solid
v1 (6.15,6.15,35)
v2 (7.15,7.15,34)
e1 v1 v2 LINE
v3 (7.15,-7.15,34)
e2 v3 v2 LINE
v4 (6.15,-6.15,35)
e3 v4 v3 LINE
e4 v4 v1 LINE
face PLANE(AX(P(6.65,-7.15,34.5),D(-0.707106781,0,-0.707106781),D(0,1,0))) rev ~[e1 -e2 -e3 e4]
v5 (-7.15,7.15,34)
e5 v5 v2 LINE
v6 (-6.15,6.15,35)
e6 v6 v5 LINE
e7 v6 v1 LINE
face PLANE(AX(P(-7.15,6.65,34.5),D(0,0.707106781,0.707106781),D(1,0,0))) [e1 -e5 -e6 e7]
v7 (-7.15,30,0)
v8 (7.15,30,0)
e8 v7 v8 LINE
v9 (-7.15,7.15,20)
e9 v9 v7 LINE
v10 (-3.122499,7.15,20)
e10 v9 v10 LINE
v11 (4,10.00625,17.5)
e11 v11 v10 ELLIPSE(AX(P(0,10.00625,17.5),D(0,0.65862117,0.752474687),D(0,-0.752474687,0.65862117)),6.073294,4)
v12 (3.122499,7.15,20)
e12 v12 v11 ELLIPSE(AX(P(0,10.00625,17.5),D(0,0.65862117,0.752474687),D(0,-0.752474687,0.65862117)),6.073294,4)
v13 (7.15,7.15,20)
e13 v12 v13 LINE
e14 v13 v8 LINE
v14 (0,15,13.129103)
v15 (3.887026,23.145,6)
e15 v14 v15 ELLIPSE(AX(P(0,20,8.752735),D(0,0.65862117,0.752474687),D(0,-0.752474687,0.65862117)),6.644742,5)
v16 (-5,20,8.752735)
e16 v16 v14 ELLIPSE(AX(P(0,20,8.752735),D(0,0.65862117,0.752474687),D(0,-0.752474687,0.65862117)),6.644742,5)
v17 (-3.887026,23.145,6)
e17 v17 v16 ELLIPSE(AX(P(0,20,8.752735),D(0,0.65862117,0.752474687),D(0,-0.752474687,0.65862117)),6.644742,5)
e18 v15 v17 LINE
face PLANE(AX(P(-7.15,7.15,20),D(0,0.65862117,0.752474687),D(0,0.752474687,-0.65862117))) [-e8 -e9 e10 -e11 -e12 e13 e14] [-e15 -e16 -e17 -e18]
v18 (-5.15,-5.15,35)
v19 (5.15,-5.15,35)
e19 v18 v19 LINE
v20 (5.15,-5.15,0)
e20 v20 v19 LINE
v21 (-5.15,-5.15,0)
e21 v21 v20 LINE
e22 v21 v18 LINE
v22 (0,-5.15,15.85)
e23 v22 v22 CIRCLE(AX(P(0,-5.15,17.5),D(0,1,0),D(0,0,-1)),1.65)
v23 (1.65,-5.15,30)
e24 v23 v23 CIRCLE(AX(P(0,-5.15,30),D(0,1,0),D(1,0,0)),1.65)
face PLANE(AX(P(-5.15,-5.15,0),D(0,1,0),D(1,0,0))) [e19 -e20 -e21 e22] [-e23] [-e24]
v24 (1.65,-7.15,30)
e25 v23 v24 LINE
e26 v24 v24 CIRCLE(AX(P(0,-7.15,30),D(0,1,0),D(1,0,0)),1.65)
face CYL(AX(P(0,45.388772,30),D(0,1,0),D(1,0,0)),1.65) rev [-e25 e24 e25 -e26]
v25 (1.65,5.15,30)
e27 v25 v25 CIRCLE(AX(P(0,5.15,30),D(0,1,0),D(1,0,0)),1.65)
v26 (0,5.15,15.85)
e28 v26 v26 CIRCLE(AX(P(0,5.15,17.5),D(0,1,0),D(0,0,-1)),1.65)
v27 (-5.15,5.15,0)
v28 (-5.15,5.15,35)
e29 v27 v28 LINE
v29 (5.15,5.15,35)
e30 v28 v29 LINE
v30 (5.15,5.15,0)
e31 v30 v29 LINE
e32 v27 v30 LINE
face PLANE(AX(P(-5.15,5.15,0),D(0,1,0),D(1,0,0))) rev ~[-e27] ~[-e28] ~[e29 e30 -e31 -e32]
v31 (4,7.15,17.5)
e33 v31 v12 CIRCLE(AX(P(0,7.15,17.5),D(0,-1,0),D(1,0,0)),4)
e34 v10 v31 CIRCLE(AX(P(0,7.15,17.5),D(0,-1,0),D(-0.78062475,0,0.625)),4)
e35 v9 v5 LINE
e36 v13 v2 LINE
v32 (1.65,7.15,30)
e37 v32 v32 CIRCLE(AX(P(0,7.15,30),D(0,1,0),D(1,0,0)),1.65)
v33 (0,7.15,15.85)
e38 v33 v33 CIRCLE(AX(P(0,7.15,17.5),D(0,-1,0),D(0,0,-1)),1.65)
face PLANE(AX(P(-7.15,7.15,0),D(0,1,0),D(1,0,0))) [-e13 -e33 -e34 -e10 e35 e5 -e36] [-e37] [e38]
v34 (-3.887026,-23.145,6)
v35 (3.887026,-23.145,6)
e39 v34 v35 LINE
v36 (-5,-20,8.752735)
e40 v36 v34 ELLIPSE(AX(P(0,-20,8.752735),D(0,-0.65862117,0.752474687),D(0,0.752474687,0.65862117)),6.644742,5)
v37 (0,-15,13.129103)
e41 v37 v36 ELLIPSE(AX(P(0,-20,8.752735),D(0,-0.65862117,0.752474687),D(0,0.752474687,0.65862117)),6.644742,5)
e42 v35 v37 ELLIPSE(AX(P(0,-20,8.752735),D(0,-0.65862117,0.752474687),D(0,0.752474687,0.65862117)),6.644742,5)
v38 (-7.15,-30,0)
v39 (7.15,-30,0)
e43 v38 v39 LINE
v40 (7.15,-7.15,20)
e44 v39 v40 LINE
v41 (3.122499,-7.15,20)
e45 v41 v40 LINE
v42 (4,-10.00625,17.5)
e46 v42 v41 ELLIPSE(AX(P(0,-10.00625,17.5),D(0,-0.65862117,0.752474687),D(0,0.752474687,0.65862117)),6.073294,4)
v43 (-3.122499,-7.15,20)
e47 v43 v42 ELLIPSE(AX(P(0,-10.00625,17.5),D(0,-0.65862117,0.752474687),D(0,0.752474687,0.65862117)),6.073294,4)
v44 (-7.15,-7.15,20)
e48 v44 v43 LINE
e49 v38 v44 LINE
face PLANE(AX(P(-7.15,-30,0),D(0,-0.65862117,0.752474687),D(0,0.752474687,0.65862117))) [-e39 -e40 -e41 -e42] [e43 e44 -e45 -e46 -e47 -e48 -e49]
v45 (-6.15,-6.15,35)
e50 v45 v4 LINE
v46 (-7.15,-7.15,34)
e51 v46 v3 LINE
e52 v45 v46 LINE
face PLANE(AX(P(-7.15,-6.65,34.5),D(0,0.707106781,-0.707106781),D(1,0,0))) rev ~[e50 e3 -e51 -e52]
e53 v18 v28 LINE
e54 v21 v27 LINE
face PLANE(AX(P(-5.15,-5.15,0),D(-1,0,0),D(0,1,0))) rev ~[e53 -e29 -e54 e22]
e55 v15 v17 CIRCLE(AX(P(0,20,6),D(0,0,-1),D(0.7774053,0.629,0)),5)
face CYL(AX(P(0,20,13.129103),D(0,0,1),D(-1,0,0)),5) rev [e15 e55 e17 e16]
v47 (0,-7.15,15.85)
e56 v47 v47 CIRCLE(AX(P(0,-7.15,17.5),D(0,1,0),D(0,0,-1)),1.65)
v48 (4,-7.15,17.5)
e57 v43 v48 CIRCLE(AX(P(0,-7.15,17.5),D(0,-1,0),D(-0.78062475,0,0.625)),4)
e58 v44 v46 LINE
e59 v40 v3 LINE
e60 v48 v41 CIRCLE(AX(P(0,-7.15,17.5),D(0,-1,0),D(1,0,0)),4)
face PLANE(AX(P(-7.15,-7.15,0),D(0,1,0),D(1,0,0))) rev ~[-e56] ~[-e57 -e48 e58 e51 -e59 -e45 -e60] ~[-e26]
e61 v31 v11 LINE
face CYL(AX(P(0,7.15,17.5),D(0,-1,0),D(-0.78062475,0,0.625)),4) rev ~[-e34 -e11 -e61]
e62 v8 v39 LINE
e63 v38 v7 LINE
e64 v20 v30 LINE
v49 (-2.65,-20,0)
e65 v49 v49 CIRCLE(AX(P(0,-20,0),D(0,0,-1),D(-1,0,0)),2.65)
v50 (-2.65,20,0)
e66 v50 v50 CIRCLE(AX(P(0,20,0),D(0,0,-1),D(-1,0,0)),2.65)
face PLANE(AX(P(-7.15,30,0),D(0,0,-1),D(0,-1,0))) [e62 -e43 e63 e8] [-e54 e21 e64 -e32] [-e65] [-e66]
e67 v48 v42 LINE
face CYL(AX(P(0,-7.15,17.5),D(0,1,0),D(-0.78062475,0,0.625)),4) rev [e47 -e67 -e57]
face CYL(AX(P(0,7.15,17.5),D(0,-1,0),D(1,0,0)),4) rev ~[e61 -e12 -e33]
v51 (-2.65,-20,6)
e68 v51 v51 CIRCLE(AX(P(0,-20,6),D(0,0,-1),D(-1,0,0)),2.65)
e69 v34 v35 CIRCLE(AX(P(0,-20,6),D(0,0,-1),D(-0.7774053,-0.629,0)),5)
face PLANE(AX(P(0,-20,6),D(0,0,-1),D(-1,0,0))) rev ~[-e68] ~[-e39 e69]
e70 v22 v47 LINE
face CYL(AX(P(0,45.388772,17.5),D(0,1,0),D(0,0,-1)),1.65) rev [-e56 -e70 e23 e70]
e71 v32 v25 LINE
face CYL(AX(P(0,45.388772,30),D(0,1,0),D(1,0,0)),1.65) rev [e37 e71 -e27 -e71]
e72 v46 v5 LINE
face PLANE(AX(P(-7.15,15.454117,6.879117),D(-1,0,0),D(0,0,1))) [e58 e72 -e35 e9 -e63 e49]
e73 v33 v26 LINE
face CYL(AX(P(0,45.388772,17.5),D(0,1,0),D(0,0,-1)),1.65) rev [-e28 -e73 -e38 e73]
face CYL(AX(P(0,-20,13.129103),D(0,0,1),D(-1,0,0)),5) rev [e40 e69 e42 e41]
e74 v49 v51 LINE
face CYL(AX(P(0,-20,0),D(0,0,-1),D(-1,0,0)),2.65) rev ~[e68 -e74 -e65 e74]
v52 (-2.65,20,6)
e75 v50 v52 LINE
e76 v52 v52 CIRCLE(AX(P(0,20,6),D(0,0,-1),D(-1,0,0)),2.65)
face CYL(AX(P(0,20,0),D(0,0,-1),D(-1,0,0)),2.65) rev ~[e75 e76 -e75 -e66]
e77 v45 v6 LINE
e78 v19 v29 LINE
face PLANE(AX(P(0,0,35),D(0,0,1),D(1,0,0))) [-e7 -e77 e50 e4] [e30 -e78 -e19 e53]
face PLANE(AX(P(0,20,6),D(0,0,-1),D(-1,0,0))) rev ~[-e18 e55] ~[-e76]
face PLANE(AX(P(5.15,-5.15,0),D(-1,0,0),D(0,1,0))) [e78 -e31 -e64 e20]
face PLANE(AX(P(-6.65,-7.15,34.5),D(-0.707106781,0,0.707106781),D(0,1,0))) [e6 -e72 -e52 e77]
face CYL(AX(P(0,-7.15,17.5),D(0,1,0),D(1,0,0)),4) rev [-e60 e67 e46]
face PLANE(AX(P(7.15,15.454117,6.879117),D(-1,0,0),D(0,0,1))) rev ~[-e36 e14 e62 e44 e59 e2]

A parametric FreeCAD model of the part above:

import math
import FreeCAD as App
import Part
import Sketcher
from FreeCAD import Vector


def edges_at(feature, points):
    """Names of the edges that pass closest to the given points."""
    edges = feature.Shape.Edges
    near = lambda p: min(range(len(edges)), key=lambda i: edges[i].distToShape(Part.Vertex(*p))[0])
    return sorted({f"Edge{near(p) + 1}" for p in points})


def add_polygon(sketch, points):
    """Adds a closed chain of lines whose ends are joined by coincident constraints."""
    first, n = sketch.GeometryCount, len(points)
    for a, b in zip(points, points[1:] + points[:1]):
        sketch.addGeometry(Part.LineSegment(App.Vector(*a, 0), App.Vector(*b, 0)), False)
    for i in range(n):
        sketch.addConstraint(Sketcher.Constraint("Coincident", first + i, 2, first + (i + 1) % n, 1))

doc = App.newDocument("Part")
body = doc.addObject("PartDesign::Body", "Body")

# Sketch on XY plane
sketch1 = body.newObject("Sketcher::SketchObject", "Sketch")
sketch1.AttachmentSupport = (doc.getObject("XY_Plane"), [""])
sketch1.MapMode = "FlatFace"
add_polygon(sketch1, [(-7.15, 7.15), (-7.15, -7.15), (7.15, -7.15), (7.15, 7.15)])  # lines 0-3
add_polygon(sketch1, [(5.15, -5.15), (-5.15, -5.15), (-5.15, 5.15), (5.15, 5.15)])  # lines 4-7
sketch1.addConstraint([
    Sketcher.Constraint("Vertical", 0),
    Sketcher.Constraint("Horizontal", 1),
    Sketcher.Constraint("Vertical", 2),
    Sketcher.Constraint("Horizontal", 3),
    Sketcher.Constraint("Horizontal", 4),
    Sketcher.Constraint("Vertical", 5),
    Sketcher.Constraint("Horizontal", 6),
    Sketcher.Constraint("Vertical", 7),
    Sketcher.Constraint("Symmetric", 0, 2, 2, 2, -1, 1),
    Sketcher.Constraint("Symmetric", 4, 2, 6, 2, -1, 1),
    Sketcher.Constraint("Equal", 3, 0),
    Sketcher.Constraint("Equal", 6, 5),
    Sketcher.Constraint("DistanceX", 1, 1, 1, 2, 14.3),
    Sketcher.Constraint("DistanceX", 4, 2, 4, 1, 10.3),
])
pad1 = body.newObject("PartDesign::Pad", "Pad")
pad1.Profile = sketch1
pad1.Length = 35

# Sketch on YZ plane
sketch2 = body.newObject("Sketcher::SketchObject", "Sketch001")
sketch2.AttachmentSupport = (doc.getObject("YZ_Plane"), [""])
sketch2.MapMode = "FlatFace"
sketch2.AttachmentOffset = App.Placement(Vector(0, 0, -7.15), App.Rotation())
add_polygon(sketch2, [(30, 0), (7.15, 0), (7.15, 20)])  # lines 0-2
add_polygon(sketch2, [(-7.15, 0), (-30, 0), (-7.15, 20)])  # lines 3-5
sketch2.addConstraint([
    Sketcher.Constraint("Horizontal", 0),
    Sketcher.Constraint("Vertical", 1),
    Sketcher.Constraint("Horizontal", 3),
    Sketcher.Constraint("Vertical", 5),
    Sketcher.Constraint("Symmetric", 2, 2, 3, 2, -1, 1),
    Sketcher.Constraint("Symmetric", 1, 2, 4, 2, -2),
    Sketcher.Constraint("PointOnObject", 0, 2, -1),
    Sketcher.Constraint("DistanceY", 1, 1, 1, 2, 20.0),
    Sketcher.Constraint("DistanceX", -1, 1, 2, 2, 30.0),
    Sketcher.Constraint("DistanceX", 0, 2, 0, 1, 22.85),
])
pad2 = body.newObject("PartDesign::Pad", "Pad001")
pad2.Profile = sketch2
pad2.Length = 14.3

# Sketch on XZ plane
sketch3 = body.newObject("Sketcher::SketchObject", "Sketch002")
sketch3.AttachmentSupport = (doc.getObject("XZ_Plane"), [""])
sketch3.MapMode = "FlatFace"
sketch3.AttachmentOffset = App.Placement(Vector(0, 0, 7.15), App.Rotation())
sketch3.addGeometry([
    Part.Circle(Vector(0, 30, 0), Vector(0, 0, 1), 1.65),
    Part.Circle(Vector(0, 17.5, 0), Vector(0, 0, 1), 1.65),
], False)
sketch3.addConstraint([
    Sketcher.Constraint("Equal", 0, 1),
    Sketcher.Constraint("PointOnObject", 0, 3, -2),
    Sketcher.Constraint("PointOnObject", 1, 3, -2),
    Sketcher.Constraint("Diameter", 0, 3.3),
    Sketcher.Constraint("DistanceY", -1, 1, 0, 3, 30.0),
    Sketcher.Constraint("DistanceY", -1, 1, 1, 3, 17.5),
])
pocket1 = body.newObject("PartDesign::Pocket", "Pocket")
pocket1.Profile = sketch3
pocket1.Type = "ThroughAll"
pocket1.Midplane = True

# Sketch on XZ plane
sketch4 = body.newObject("Sketcher::SketchObject", "Sketch003")
sketch4.AttachmentSupport = (doc.getObject("XZ_Plane"), [""])
sketch4.MapMode = "FlatFace"
sketch4.AttachmentOffset = App.Placement(Vector(0, 0, 7.15), App.Rotation())
sketch4.addGeometry([
    Part.ArcOfCircle(Part.Circle(Vector(0, 17.5, 0), Vector(0, 0, 1), 4), math.radians(141.317813), math.radians(360)),
    Part.ArcOfCircle(Part.Circle(Vector(0, 17.5, 0), Vector(0, 0, 1), 4), math.radians(0), math.radians(38.682187)),
    Part.LineSegment(Vector(3.122499, 20, 0), Vector(-3.122499, 20, 0)),
    Part.Circle(Vector(0, 17.5, 0), Vector(0, 0, 1), 1.65),
], False)
sketch4.addConstraint([
    Sketcher.Constraint("Tangent", 0, 2, 1, 1),
    Sketcher.Constraint("Coincident", 1, 2, 2, 1),
    Sketcher.Constraint("Coincident", 2, 2, 0, 1),
    Sketcher.Constraint("Horizontal", 2),
    Sketcher.Constraint("Coincident", 3, 3, 0, 3),
    Sketcher.Constraint("Equal", 0, 1),
    Sketcher.Constraint("PointOnObject", 0, 3, -2),
    Sketcher.Constraint("Horizontal", 3, 3, 0, 2),
    Sketcher.Constraint("Radius", 0, 4.0),
    Sketcher.Constraint("Diameter", 3, 3.3),
    Sketcher.Constraint("DistanceY", -1, 1, 1, 2, 20.0),
    Sketcher.Constraint("DistanceY", -1, 1, 0, 3, 17.5),
])
pocket2 = body.newObject("PartDesign::Pocket", "Pocket001")
pocket2.Profile = sketch4
pocket2.Length = 52.538772
pocket2.Reversed = True

# Sketch on XZ plane
sketch5 = body.newObject("Sketcher::SketchObject", "Sketch004")
sketch5.AttachmentSupport = (doc.getObject("XZ_Plane"), [""])
sketch5.MapMode = "FlatFace"
sketch5.AttachmentOffset = App.Placement(Vector(0, 0, -7.15), App.Rotation())
sketch5.addGeometry([
    Part.ArcOfCircle(Part.Circle(Vector(0, 17.5, 0), Vector(0, 0, 1), 4), math.radians(141.317813), math.radians(360)),
    Part.ArcOfCircle(Part.Circle(Vector(0, 17.5, 0), Vector(0, 0, 1), 4), math.radians(0), math.radians(38.682187)),
    Part.LineSegment(Vector(3.122499, 20, 0), Vector(-3.122499, 20, 0)),
    Part.Circle(Vector(0, 17.5, 0), Vector(0, 0, 1), 1.65),
], False)
sketch5.addConstraint([
    Sketcher.Constraint("Tangent", 0, 2, 1, 1),
    Sketcher.Constraint("Coincident", 1, 2, 2, 1),
    Sketcher.Constraint("Coincident", 2, 2, 0, 1),
    Sketcher.Constraint("Horizontal", 2),
    Sketcher.Constraint("Coincident", 3, 3, 0, 3),
    Sketcher.Constraint("Equal", 0, 1),
    Sketcher.Constraint("PointOnObject", 0, 3, -2),
    Sketcher.Constraint("Horizontal", 3, 3, 0, 2),
    Sketcher.Constraint("Radius", 0, 4.0),
    Sketcher.Constraint("Diameter", 3, 3.3),
    Sketcher.Constraint("DistanceY", -1, 1, 1, 2, 20.0),
    Sketcher.Constraint("DistanceY", -1, 1, 0, 3, 17.5),
])
pocket3 = body.newObject("PartDesign::Pocket", "Pocket002")
pocket3.Profile = sketch5
pocket3.Length = 38.238772

# Sketch on XY plane
sketch6 = body.newObject("Sketcher::SketchObject", "Sketch005")
sketch6.AttachmentSupport = (doc.getObject("XY_Plane"), [""])
sketch6.MapMode = "FlatFace"
sketch6.addGeometry(Part.Circle(Vector(0, 20, 0), Vector(0, 0, 1), 2.65), False)
sketch6.addConstraint([
    Sketcher.Constraint("PointOnObject", 0, 3, -2),
    Sketcher.Constraint("Diameter", 0, 5.3),
    Sketcher.Constraint("DistanceY", -1, 1, 0, 3, 20.0),
])
pocket4 = body.newObject("PartDesign::Pocket", "Pocket003")
pocket4.Profile = sketch6
pocket4.Type = "UpToFirst"
pocket4.Reversed = True

# Sketch on XY plane
sketch7 = body.newObject("Sketcher::SketchObject", "Sketch006")
sketch7.AttachmentSupport = (doc.getObject("XY_Plane"), [""])
sketch7.MapMode = "FlatFace"
sketch7.addGeometry(Part.Circle(Vector(0, -20, 0), Vector(0, 0, 1), 2.65), False)
sketch7.addConstraint([
    Sketcher.Constraint("PointOnObject", 0, 3, -2),
    Sketcher.Constraint("Diameter", 0, 5.3),
    Sketcher.Constraint("DistanceY", 0, 3, -1, 1, 20.0),
])
pocket5 = body.newObject("PartDesign::Pocket", "Pocket004")
pocket5.Profile = sketch7
pocket5.Type = "UpToFirst"
pocket5.Reversed = True

# Sketch on XY plane
sketch8 = body.newObject("Sketcher::SketchObject", "Sketch007")
sketch8.AttachmentSupport = (doc.getObject("XY_Plane"), [""])
sketch8.MapMode = "FlatFace"
sketch8.AttachmentOffset = App.Placement(Vector(0, 0, 13.129103), App.Rotation())
sketch8.addGeometry([
    Part.Circle(Vector(0, 20, 0), Vector(0, 0, 1), 5),
    Part.Circle(Vector(0, -20, 0), Vector(0, 0, 1), 5),
], False)
sketch8.addConstraint([
    Sketcher.Constraint("Equal", 0, 1),
    Sketcher.Constraint("Symmetric", 0, 3, 1, 3, -1, 1),
    Sketcher.Constraint("PointOnObject", 0, 3, -2),
    Sketcher.Constraint("Diameter", 0, 10.0),
    Sketcher.Constraint("DistanceY", -1, 1, 0, 3, 20.0),
])
pocket6 = body.newObject("PartDesign::Pocket", "Pocket005")
pocket6.Profile = sketch8
pocket6.Length = 7.129103
doc.recompute()

chamfer = body.newObject("PartDesign::Chamfer", "Chamfer")
chamfer.Base = (pocket6, edges_at(pocket6, [
    (7.15, 0, 35),
    (0, 7.15, 35),
    (-7.15, 0, 35),
    (0, -7.15, 35),
]))
chamfer.Size = 1

doc.recompute()
